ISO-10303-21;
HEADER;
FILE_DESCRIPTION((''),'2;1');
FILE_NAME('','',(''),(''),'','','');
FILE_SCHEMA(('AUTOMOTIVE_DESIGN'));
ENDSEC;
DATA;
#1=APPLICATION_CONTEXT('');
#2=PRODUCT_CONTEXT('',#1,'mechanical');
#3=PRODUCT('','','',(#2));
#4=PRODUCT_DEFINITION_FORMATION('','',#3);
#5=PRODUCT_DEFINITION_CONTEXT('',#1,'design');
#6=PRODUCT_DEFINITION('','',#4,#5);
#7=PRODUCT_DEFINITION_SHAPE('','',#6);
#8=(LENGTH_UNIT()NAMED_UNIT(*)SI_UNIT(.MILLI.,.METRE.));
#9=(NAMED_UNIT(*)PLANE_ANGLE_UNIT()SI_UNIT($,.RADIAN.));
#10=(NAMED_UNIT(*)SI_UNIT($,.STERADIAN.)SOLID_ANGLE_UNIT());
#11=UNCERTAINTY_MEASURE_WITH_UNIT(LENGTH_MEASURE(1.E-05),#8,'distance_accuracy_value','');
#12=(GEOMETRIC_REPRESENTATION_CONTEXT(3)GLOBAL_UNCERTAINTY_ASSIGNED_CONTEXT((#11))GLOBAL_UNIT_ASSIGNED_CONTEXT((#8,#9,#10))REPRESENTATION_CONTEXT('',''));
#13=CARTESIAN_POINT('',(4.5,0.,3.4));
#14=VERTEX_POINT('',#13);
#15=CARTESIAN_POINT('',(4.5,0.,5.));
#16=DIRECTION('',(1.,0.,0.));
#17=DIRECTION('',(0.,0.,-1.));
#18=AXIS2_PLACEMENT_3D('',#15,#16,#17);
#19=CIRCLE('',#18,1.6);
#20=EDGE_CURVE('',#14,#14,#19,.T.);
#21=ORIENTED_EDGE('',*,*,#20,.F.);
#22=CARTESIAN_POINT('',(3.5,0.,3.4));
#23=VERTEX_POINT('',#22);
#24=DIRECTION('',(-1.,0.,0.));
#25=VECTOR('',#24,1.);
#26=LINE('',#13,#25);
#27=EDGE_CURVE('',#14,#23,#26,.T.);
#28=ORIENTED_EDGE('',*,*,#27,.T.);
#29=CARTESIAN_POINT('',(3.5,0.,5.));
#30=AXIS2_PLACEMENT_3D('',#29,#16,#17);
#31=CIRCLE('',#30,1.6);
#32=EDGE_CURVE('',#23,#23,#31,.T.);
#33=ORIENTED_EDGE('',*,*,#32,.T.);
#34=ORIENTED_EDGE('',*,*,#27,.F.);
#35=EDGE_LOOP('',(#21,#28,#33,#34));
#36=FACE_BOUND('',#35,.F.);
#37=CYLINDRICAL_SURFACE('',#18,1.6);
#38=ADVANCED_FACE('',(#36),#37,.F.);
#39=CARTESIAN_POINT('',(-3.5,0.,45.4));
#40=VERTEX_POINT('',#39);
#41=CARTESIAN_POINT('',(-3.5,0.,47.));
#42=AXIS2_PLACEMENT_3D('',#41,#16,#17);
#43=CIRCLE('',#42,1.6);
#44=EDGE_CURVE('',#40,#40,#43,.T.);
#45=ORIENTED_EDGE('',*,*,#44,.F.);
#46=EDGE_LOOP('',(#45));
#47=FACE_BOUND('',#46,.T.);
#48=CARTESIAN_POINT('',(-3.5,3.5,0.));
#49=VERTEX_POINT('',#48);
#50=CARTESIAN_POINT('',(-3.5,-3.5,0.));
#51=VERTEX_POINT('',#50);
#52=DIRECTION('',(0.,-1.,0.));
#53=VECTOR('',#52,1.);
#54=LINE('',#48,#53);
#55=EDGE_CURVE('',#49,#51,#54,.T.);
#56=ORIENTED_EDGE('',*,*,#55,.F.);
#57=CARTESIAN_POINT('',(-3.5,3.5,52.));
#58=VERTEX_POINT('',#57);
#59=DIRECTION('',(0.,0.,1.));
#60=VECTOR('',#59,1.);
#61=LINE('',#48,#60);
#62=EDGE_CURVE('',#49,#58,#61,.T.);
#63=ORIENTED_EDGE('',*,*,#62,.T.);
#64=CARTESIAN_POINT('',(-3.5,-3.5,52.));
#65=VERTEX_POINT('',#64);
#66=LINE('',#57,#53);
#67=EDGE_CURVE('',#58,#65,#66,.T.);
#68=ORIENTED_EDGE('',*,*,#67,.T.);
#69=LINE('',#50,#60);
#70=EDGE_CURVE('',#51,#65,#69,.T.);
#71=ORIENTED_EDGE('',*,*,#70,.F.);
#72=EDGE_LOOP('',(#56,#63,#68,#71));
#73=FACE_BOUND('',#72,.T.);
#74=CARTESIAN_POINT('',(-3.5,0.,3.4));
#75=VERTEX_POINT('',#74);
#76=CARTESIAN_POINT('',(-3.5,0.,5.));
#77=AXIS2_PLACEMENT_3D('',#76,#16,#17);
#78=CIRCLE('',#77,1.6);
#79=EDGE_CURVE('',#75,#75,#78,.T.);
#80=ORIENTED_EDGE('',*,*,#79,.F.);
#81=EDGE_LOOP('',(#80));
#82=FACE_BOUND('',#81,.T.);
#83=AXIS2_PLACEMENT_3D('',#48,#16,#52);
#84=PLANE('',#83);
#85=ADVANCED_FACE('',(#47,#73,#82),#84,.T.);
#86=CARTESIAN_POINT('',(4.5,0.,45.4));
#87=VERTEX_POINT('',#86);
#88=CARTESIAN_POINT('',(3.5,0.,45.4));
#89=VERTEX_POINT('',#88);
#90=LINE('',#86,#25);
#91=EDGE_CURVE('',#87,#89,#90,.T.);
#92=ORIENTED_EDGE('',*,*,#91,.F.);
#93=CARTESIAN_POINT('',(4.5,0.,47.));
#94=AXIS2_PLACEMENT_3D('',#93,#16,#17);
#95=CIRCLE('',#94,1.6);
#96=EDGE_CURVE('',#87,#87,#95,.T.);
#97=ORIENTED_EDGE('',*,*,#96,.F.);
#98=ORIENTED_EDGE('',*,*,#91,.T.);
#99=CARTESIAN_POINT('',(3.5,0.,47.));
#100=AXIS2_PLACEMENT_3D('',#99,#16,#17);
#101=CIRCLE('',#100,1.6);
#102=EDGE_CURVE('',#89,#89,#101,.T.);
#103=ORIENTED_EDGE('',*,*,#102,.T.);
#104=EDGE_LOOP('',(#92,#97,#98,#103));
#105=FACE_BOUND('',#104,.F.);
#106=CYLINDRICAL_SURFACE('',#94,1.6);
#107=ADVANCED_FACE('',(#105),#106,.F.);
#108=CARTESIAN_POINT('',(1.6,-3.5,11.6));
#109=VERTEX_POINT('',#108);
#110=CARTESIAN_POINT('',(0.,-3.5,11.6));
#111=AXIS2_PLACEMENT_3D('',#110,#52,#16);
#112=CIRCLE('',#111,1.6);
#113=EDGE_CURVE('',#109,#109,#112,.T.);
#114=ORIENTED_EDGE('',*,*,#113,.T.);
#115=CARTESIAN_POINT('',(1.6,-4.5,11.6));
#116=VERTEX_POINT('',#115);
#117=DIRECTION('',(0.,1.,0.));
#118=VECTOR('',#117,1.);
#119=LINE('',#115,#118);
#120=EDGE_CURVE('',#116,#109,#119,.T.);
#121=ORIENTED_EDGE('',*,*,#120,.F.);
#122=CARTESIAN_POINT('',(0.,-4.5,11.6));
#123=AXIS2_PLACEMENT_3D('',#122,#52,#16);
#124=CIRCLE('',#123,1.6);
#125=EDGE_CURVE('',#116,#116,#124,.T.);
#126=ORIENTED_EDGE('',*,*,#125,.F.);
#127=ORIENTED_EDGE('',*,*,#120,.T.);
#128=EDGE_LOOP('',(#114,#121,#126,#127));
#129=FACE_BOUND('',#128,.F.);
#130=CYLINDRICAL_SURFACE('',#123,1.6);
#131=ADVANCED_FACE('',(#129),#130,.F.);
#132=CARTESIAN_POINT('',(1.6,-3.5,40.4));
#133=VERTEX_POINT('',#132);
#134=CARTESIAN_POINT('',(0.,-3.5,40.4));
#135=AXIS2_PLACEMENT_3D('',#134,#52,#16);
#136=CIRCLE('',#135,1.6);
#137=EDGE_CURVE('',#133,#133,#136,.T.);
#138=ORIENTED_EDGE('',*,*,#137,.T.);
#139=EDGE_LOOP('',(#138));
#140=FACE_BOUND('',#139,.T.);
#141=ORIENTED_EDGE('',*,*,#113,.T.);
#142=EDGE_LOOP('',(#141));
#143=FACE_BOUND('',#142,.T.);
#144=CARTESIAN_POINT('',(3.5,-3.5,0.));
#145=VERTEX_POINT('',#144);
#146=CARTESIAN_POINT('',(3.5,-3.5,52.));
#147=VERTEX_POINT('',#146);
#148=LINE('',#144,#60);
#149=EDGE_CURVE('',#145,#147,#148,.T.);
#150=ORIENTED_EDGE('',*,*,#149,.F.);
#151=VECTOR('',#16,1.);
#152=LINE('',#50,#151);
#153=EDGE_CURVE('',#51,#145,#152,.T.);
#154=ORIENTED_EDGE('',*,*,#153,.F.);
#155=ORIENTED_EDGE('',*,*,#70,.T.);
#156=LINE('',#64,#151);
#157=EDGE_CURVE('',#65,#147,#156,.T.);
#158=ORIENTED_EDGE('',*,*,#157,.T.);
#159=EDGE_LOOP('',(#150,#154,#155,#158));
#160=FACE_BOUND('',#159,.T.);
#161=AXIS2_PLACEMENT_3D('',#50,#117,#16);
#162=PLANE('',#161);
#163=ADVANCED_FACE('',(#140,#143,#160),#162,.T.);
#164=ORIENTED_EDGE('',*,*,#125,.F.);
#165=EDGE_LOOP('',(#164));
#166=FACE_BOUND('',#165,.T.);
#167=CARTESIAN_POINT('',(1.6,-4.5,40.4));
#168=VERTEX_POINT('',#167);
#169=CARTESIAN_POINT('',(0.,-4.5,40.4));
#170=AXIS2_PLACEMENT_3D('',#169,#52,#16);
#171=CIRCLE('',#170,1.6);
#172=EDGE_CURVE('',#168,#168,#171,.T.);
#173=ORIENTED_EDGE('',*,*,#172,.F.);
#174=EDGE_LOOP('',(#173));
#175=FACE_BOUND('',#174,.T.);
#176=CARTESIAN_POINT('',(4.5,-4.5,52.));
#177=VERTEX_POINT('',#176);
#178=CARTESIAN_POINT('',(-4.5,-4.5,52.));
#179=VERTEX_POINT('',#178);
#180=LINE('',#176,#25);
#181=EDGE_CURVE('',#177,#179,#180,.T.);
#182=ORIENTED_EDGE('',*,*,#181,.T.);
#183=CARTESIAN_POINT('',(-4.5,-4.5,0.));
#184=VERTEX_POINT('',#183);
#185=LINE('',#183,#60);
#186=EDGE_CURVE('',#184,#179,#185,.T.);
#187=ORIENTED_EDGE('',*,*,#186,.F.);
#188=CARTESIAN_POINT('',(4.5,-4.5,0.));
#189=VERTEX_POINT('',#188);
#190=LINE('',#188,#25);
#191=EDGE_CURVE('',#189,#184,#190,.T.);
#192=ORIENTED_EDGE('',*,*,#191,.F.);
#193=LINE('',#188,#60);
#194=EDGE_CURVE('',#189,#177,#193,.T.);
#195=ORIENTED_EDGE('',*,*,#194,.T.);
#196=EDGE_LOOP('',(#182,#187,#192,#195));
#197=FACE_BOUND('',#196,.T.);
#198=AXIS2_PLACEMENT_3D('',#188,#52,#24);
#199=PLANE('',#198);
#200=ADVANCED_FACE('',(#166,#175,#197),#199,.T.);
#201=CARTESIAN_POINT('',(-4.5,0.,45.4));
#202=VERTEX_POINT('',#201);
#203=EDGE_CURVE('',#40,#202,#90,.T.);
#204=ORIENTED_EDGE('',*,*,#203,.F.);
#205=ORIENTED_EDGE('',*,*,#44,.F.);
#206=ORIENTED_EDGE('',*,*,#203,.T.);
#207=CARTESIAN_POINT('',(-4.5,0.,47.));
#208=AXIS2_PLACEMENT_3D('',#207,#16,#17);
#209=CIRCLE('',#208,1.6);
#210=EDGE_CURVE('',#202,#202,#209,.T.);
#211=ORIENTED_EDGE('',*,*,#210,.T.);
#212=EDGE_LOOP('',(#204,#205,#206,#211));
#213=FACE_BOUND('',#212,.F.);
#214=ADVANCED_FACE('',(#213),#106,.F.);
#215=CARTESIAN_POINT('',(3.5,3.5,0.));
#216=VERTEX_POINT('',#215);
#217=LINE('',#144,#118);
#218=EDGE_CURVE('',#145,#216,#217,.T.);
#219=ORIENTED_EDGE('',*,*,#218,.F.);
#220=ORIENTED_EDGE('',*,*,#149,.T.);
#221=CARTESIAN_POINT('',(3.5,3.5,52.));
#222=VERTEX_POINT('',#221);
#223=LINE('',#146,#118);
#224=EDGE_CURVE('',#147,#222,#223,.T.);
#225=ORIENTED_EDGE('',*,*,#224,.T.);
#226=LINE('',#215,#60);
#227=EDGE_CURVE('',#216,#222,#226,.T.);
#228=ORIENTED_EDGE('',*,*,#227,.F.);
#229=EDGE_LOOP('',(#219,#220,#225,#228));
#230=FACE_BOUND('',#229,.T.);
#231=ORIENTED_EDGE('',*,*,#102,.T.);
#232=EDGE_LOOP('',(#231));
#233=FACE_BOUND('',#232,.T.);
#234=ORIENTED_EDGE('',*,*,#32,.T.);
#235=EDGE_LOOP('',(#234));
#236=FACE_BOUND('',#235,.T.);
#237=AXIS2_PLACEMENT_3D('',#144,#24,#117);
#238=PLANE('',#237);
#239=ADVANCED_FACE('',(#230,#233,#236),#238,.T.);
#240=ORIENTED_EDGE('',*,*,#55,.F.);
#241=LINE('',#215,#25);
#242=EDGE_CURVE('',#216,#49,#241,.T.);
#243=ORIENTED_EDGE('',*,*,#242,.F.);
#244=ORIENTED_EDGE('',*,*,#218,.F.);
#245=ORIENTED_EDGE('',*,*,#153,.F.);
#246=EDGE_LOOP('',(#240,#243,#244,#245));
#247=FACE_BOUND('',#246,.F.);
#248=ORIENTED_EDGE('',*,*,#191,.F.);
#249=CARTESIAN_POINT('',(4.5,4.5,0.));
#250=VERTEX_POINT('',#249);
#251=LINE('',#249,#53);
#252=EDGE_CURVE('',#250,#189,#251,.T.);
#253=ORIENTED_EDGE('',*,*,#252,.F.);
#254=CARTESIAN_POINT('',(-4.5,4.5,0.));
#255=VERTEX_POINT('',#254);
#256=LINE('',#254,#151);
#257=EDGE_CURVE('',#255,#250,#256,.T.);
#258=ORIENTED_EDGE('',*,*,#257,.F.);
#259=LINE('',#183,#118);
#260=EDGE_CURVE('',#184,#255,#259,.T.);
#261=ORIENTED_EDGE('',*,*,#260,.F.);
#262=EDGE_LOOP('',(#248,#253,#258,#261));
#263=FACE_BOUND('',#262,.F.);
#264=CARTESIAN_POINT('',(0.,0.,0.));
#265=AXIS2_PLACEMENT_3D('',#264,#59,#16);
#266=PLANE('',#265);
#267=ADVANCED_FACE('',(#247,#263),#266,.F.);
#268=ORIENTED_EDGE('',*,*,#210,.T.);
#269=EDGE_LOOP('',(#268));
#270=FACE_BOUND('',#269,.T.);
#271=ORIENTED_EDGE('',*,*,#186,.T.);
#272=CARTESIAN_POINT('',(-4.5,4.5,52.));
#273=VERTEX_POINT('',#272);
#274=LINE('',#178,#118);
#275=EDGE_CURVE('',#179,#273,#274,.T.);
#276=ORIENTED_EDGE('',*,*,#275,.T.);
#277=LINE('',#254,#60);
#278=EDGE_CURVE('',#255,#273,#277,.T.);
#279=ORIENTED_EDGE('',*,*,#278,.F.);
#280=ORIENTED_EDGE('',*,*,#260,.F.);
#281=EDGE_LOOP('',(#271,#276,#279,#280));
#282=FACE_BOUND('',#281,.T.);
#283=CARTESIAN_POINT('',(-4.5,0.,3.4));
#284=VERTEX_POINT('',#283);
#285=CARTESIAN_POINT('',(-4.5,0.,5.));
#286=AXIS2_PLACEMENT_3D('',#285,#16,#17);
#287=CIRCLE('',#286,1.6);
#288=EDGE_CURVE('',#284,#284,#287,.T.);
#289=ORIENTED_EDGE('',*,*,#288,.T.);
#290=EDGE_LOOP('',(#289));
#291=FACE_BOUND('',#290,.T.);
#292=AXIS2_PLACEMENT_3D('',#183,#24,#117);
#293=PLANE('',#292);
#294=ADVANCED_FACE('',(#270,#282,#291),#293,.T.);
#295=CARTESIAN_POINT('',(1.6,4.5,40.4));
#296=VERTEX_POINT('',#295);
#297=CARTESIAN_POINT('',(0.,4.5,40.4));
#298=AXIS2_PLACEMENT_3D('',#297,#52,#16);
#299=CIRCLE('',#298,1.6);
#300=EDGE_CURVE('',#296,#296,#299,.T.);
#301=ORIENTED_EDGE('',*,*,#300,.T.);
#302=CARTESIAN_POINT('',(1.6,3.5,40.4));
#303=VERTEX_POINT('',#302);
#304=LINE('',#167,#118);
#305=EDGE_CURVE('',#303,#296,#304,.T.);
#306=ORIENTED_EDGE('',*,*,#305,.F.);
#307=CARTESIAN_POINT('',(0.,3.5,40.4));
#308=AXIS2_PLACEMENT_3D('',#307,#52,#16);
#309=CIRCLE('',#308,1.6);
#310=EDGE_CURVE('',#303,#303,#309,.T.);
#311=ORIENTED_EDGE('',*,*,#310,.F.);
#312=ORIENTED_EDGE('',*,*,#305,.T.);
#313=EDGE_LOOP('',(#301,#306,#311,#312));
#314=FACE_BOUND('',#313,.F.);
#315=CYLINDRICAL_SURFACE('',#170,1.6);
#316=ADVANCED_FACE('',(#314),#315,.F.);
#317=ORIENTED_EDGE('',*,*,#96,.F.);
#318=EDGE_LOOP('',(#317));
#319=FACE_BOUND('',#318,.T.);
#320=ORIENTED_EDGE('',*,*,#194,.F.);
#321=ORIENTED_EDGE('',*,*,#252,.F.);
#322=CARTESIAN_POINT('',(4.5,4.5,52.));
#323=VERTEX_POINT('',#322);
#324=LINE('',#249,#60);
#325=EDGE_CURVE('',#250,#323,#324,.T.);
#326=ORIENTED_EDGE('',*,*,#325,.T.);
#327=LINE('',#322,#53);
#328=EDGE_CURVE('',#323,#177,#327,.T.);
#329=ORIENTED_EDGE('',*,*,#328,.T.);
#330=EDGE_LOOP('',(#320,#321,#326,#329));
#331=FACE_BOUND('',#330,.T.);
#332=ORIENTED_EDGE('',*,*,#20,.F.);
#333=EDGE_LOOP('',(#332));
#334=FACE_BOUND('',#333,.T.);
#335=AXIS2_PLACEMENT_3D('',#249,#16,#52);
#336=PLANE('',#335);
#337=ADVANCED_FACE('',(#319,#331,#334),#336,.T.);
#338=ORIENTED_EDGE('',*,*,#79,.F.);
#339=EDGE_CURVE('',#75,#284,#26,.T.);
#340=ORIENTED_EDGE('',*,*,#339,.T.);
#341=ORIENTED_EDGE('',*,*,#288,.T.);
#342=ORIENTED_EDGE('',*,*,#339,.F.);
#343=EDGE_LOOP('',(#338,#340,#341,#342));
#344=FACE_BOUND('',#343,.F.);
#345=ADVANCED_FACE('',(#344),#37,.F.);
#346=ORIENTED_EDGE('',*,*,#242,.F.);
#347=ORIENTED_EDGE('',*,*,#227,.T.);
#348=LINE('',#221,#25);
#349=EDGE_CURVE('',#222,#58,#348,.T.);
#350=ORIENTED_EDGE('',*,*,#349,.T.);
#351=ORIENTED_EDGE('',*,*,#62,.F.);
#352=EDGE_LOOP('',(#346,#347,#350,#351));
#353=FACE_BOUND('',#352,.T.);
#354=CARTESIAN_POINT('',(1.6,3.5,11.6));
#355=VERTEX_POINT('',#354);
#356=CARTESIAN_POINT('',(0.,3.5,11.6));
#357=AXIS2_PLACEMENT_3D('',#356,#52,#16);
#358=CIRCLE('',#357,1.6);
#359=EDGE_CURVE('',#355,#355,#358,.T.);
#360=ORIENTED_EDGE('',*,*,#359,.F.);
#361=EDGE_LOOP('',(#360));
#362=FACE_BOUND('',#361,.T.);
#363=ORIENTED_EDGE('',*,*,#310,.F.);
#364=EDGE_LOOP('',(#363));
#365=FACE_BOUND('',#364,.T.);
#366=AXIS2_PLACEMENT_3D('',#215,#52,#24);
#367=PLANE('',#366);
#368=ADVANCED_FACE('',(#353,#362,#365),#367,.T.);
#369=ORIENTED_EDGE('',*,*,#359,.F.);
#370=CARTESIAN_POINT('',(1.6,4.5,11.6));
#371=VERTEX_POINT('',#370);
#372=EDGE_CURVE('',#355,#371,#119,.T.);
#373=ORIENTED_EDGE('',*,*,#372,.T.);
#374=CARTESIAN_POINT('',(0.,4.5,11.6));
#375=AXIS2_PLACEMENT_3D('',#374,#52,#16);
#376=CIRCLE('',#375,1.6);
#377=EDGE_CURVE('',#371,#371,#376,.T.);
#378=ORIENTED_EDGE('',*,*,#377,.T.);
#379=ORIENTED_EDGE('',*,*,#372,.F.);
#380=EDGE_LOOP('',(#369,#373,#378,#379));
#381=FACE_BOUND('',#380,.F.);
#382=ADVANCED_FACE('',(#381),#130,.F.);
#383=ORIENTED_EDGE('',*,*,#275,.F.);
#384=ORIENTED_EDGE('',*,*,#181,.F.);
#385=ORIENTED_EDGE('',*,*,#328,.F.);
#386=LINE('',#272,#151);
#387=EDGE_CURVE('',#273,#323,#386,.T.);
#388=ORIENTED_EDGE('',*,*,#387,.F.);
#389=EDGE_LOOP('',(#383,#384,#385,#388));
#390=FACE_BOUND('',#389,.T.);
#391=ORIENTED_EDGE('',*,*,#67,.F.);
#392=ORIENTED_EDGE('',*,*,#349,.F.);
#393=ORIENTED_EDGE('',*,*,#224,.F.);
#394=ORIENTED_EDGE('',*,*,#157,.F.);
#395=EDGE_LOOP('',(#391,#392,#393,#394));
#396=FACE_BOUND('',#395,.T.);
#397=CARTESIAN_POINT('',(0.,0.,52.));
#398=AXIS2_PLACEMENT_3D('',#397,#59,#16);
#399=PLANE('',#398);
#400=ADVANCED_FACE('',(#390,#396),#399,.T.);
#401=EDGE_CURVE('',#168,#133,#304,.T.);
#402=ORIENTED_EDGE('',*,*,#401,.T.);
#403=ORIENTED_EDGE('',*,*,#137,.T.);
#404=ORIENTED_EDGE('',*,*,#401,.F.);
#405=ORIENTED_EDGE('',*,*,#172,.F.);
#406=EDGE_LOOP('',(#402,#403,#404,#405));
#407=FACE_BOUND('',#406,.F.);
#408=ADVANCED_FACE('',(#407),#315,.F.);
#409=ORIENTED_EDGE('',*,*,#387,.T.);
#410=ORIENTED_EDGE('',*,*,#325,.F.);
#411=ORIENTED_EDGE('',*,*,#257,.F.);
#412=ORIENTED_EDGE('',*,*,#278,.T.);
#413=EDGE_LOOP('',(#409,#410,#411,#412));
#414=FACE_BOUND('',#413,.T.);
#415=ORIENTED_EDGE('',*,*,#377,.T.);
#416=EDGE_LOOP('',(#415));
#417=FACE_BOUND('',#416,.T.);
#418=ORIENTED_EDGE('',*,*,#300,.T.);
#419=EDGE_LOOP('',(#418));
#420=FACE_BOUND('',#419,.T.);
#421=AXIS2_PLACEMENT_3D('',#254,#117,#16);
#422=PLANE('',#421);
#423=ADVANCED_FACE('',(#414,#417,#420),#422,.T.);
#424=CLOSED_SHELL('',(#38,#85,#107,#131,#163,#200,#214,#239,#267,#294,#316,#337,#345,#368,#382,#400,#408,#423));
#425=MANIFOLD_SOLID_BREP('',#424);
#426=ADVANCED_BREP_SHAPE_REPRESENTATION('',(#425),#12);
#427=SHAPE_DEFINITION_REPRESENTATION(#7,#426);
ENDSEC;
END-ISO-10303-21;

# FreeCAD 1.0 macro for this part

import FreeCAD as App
import Part
import Sketcher

V = App.Vector
Q = App.Units.Quantity

doc = App.newDocument("Part")
params = doc.addObject("Spreadsheet::Sheet", "Params")
for row, (alias, value) in enumerate([
    ("sketch1_width", "9 mm"),
    ("pad1_length", "52 mm"),
    ("sketch2_diameter", "3.2 mm"),
    ("sketch3_diameter", "3.2 mm"),
], start=1):
    params.set(f"A{row}", alias)
    params.set(f"B{row}", "=" + value)
    params.setAlias(f"B{row}", alias)

body = doc.addObject("PartDesign::Body", "Body")

# Sketch on XY plane
sketch1 = body.newObject("Sketcher::SketchObject", "Sketch")
sketch1.AttachmentSupport = (doc.getObject("XY_Plane"), [""])
sketch1.MapMode = "FlatFace"
sketch1.addGeometry([
    Part.LineSegment(V(-4, -4, 0), V(4, -4, 0)),  # 0
    Part.LineSegment(V(4, -4, 0), V(4, 4, 0)),  # 1
    Part.LineSegment(V(4, 4, 0), V(-4, 4, 0)),  # 2
    Part.LineSegment(V(-4, 4, 0), V(-4, -4, 0)),  # 3
    Part.LineSegment(V(-4, 4, 0), V(4, 4, 0)),  # 4
    Part.LineSegment(V(4, 4, 0), V(4, -4, 0)),  # 5
    Part.LineSegment(V(4, -4, 0), V(-4, -4, 0)),  # 6
    Part.LineSegment(V(-4, -4, 0), V(-4, 4, 0)),  # 7
], False)
sketch1.addConstraint([
    Sketcher.Constraint("Coincident", 0, 2, 1, 1),
    Sketcher.Constraint("Coincident", 1, 2, 2, 1),
    Sketcher.Constraint("Coincident", 2, 2, 3, 1),
    Sketcher.Constraint("Coincident", 3, 2, 0, 1),
    Sketcher.Constraint("Coincident", 4, 2, 5, 1),
    Sketcher.Constraint("Coincident", 5, 2, 6, 1),
    Sketcher.Constraint("Coincident", 6, 2, 7, 1),
    Sketcher.Constraint("Coincident", 7, 2, 4, 1),
    Sketcher.Constraint("Horizontal", 0),
    Sketcher.Constraint("Vertical", 1),
    Sketcher.Constraint("Horizontal", 2),
    Sketcher.Constraint("Vertical", 3),
    Sketcher.Constraint("Horizontal", 4),
    Sketcher.Constraint("Vertical", 5),
    Sketcher.Constraint("Horizontal", 6),
    Sketcher.Constraint("Vertical", 7),
    Sketcher.Constraint("Symmetric", 0, 2, 2, 2, -1, 1),
    Sketcher.Constraint("Symmetric", 4, 2, 6, 2, -1, 1),
    Sketcher.Constraint("Equal", 2, 1),
    Sketcher.Constraint("Equal", 6, 5),
    Sketcher.Constraint("DistanceX", 0, 1, 0, 2, Q("9 mm")),
    Sketcher.Constraint("DistanceX", 4, 2, 1, 2, Q("1 mm")),
])
sketch1.setExpression("Constraints[20]", "Params.sketch1_width")
pad1 = body.newObject("PartDesign::Pad", "Pad")
pad1.Profile = sketch1
pad1.setExpression("Length", "Params.pad1_length")

# Sketch on YZ plane
sketch2 = body.newObject("Sketcher::SketchObject", "Sketch001")
sketch2.AttachmentSupport = (doc.getObject("YZ_Plane"), [""])
sketch2.MapMode = "FlatFace"
sketch2.AttachmentOffset = App.Placement(V(0, 0, 4.5), App.Rotation())
sketch2.addGeometry([
    Part.Circle(V(0, 47, 0), V(0, 0, 1), 1.6),
    Part.Circle(V(0, 5, 0), V(0, 0, 1), 1.6),
], False)
sketch2.addConstraint([
    Sketcher.Constraint("Equal", 0, 1),
    Sketcher.Constraint("PointOnObject", 0, 3, -2),
    Sketcher.Constraint("PointOnObject", 1, 3, -2),
    Sketcher.Constraint("Diameter", 0, Q("3.2 mm")),
    Sketcher.Constraint("DistanceY", -1, 1, 1, 3, Q("5 mm")),
    Sketcher.Constraint("DistanceY", -1, 1, 0, 3, Q("47 mm")),
])
sketch2.setExpression("Constraints[3]", "Params.sketch2_diameter")
pocket1 = body.newObject("PartDesign::Pocket", "Pocket")
pocket1.Profile = sketch2
pocket1.Type = "ThroughAll"

# Sketch on XZ plane
sketch3 = body.newObject("Sketcher::SketchObject", "Sketch002")
sketch3.AttachmentSupport = (doc.getObject("XZ_Plane"), [""])
sketch3.MapMode = "FlatFace"
sketch3.AttachmentOffset = App.Placement(V(0, 0, 4.5), App.Rotation())
sketch3.addGeometry([
    Part.Circle(V(0, 40.4, 0), V(0, 0, 1), 1.6),
    Part.Circle(V(0, 11.6, 0), V(0, 0, 1), 1.6),
], False)
sketch3.addConstraint([
    Sketcher.Constraint("Equal", 0, 1),
    Sketcher.Constraint("PointOnObject", 0, 3, -2),
    Sketcher.Constraint("PointOnObject", 1, 3, -2),
    Sketcher.Constraint("Diameter", 0, Q("3.2 mm")),
    Sketcher.Constraint("DistanceY", -1, 1, 0, 3, Q("40.4 mm")),
    Sketcher.Constraint("DistanceY", -1, 1, 1, 3, Q("11.6 mm")),
])
sketch3.setExpression("Constraints[3]", "Params.sketch3_diameter")
pocket2 = body.newObject("PartDesign::Pocket", "Pocket001")
pocket2.Profile = sketch3
pocket2.Type = "ThroughAll"

doc.recompute()
